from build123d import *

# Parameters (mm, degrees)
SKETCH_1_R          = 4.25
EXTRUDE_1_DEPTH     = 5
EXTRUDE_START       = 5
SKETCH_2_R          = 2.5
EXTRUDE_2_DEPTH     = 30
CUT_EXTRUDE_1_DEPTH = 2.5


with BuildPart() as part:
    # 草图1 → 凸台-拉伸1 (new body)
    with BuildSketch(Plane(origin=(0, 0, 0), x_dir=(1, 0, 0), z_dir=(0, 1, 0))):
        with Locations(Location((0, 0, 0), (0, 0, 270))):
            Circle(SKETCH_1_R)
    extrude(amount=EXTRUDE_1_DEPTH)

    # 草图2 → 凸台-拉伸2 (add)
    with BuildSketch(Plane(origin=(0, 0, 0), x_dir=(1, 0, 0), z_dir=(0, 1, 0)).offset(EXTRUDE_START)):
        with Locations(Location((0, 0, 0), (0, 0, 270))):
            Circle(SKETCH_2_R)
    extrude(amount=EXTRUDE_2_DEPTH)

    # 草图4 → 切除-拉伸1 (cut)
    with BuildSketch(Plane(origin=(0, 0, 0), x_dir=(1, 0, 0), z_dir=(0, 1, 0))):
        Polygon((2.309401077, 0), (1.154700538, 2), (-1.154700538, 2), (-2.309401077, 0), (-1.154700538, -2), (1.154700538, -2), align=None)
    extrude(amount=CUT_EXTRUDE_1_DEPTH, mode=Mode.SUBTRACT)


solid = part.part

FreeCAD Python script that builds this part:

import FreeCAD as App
import Part
import Sketcher
Q = App.Units.Quantity

doc = App.newDocument("Part")
body = doc.addObject("PartDesign::Body", "Body")

sketch1 = doc.addObject("Sketcher::SketchObject", "Sketch")
body.addObject(sketch1)
sketch1.AttachmentSupport = (doc.XZ_Plane, [""])
sketch1.MapMode = "FlatFace"
sketch1.addGeometry(Part.Circle(App.Vector(0, 0, 0), App.Vector(0, 0, 1), 4.2), False)
sketch1.addConstraint([
    Sketcher.Constraint("Coincident", 0, 3, -1, 1),
    Sketcher.Constraint("Diameter", 0, 8.5),
])
pad1 = doc.addObject("PartDesign::Pad", "Pad")
body.addObject(pad1)
pad1.Profile = sketch1
pad1.Length = 5
pad1.Reversed = True

sketch2 = doc.addObject("Sketcher::SketchObject", "Sketch001")
body.addObject(sketch2)
sketch2.AttachmentSupport = (doc.XZ_Plane, [""])
sketch2.MapMode = "FlatFace"
sketch2.AttachmentOffset = App.Placement(App.Vector(0, 0, -5), App.Rotation())
sketch2.addGeometry(Part.Circle(App.Vector(0, 0, 0), App.Vector(0, 0, 1), 2.5), False)
sketch2.addConstraint([
    Sketcher.Constraint("Coincident", 0, 3, -1, 1),
    Sketcher.Constraint("Diameter", 0, 5.0),
])
pad2 = doc.addObject("PartDesign::Pad", "Pad001")
body.addObject(pad2)
pad2.Profile = sketch2
pad2.Length = 30
pad2.Reversed = True

sketch3 = doc.addObject("Sketcher::SketchObject", "Sketch002")
body.addObject(sketch3)
sketch3.AttachmentSupport = (doc.XZ_Plane, [""])
sketch3.MapMode = "FlatFace"
sketch3.addGeometry([
    Part.LineSegment(App.Vector(2.3, 0, 0), App.Vector(1.2, -2, 0)),
    Part.LineSegment(App.Vector(1.2, -2, 0), App.Vector(-1.2, -2, 0)),
    Part.LineSegment(App.Vector(-1.2, -2, 0), App.Vector(-2.3, 0, 0)),
    Part.LineSegment(App.Vector(-2.3, 0, 0), App.Vector(-1.2, 2, 0)),
    Part.LineSegment(App.Vector(-1.2, 2, 0), App.Vector(1.2, 2, 0)),
    Part.LineSegment(App.Vector(1.2, 2, 0), App.Vector(2.3, 0, 0)),
], False)
sketch3.addConstraint([
    Sketcher.Constraint("Coincident", 0, 2, 1, 1),
    Sketcher.Constraint("Coincident", 1, 2, 2, 1),
    Sketcher.Constraint("Coincident", 2, 2, 3, 1),
    Sketcher.Constraint("Coincident", 3, 2, 4, 1),
    Sketcher.Constraint("Coincident", 4, 2, 5, 1),
    Sketcher.Constraint("Coincident", 5, 2, 0, 1),
    Sketcher.Constraint("Horizontal", 1),
    Sketcher.Constraint("Horizontal", 4),
    Sketcher.Constraint("Symmetric", 0, 2, 3, 2, -1, 1),
    Sketcher.Constraint("Symmetric", 2, 2, 5, 2, -1, 1),
    Sketcher.Constraint("PointOnObject", 2, 2, -1),
    Sketcher.Constraint("Parallel", 2, 5),
    Sketcher.Constraint("Vertical", 1, 2, 3, 2),
    Sketcher.Constraint("Angle", 0, Q("-120 deg")),
    Sketcher.Constraint("DistanceY", 0, 2, -1, 1, 2.0),
    Sketcher.Constraint("DistanceX", 1, 2, 1, 1, 2.309401),
])
pocket1 = doc.addObject("PartDesign::Pocket", "Pocket")
body.addObject(pocket1)
pocket1.Profile = sketch3
pocket1.Length = 2.5

doc.recompute()
